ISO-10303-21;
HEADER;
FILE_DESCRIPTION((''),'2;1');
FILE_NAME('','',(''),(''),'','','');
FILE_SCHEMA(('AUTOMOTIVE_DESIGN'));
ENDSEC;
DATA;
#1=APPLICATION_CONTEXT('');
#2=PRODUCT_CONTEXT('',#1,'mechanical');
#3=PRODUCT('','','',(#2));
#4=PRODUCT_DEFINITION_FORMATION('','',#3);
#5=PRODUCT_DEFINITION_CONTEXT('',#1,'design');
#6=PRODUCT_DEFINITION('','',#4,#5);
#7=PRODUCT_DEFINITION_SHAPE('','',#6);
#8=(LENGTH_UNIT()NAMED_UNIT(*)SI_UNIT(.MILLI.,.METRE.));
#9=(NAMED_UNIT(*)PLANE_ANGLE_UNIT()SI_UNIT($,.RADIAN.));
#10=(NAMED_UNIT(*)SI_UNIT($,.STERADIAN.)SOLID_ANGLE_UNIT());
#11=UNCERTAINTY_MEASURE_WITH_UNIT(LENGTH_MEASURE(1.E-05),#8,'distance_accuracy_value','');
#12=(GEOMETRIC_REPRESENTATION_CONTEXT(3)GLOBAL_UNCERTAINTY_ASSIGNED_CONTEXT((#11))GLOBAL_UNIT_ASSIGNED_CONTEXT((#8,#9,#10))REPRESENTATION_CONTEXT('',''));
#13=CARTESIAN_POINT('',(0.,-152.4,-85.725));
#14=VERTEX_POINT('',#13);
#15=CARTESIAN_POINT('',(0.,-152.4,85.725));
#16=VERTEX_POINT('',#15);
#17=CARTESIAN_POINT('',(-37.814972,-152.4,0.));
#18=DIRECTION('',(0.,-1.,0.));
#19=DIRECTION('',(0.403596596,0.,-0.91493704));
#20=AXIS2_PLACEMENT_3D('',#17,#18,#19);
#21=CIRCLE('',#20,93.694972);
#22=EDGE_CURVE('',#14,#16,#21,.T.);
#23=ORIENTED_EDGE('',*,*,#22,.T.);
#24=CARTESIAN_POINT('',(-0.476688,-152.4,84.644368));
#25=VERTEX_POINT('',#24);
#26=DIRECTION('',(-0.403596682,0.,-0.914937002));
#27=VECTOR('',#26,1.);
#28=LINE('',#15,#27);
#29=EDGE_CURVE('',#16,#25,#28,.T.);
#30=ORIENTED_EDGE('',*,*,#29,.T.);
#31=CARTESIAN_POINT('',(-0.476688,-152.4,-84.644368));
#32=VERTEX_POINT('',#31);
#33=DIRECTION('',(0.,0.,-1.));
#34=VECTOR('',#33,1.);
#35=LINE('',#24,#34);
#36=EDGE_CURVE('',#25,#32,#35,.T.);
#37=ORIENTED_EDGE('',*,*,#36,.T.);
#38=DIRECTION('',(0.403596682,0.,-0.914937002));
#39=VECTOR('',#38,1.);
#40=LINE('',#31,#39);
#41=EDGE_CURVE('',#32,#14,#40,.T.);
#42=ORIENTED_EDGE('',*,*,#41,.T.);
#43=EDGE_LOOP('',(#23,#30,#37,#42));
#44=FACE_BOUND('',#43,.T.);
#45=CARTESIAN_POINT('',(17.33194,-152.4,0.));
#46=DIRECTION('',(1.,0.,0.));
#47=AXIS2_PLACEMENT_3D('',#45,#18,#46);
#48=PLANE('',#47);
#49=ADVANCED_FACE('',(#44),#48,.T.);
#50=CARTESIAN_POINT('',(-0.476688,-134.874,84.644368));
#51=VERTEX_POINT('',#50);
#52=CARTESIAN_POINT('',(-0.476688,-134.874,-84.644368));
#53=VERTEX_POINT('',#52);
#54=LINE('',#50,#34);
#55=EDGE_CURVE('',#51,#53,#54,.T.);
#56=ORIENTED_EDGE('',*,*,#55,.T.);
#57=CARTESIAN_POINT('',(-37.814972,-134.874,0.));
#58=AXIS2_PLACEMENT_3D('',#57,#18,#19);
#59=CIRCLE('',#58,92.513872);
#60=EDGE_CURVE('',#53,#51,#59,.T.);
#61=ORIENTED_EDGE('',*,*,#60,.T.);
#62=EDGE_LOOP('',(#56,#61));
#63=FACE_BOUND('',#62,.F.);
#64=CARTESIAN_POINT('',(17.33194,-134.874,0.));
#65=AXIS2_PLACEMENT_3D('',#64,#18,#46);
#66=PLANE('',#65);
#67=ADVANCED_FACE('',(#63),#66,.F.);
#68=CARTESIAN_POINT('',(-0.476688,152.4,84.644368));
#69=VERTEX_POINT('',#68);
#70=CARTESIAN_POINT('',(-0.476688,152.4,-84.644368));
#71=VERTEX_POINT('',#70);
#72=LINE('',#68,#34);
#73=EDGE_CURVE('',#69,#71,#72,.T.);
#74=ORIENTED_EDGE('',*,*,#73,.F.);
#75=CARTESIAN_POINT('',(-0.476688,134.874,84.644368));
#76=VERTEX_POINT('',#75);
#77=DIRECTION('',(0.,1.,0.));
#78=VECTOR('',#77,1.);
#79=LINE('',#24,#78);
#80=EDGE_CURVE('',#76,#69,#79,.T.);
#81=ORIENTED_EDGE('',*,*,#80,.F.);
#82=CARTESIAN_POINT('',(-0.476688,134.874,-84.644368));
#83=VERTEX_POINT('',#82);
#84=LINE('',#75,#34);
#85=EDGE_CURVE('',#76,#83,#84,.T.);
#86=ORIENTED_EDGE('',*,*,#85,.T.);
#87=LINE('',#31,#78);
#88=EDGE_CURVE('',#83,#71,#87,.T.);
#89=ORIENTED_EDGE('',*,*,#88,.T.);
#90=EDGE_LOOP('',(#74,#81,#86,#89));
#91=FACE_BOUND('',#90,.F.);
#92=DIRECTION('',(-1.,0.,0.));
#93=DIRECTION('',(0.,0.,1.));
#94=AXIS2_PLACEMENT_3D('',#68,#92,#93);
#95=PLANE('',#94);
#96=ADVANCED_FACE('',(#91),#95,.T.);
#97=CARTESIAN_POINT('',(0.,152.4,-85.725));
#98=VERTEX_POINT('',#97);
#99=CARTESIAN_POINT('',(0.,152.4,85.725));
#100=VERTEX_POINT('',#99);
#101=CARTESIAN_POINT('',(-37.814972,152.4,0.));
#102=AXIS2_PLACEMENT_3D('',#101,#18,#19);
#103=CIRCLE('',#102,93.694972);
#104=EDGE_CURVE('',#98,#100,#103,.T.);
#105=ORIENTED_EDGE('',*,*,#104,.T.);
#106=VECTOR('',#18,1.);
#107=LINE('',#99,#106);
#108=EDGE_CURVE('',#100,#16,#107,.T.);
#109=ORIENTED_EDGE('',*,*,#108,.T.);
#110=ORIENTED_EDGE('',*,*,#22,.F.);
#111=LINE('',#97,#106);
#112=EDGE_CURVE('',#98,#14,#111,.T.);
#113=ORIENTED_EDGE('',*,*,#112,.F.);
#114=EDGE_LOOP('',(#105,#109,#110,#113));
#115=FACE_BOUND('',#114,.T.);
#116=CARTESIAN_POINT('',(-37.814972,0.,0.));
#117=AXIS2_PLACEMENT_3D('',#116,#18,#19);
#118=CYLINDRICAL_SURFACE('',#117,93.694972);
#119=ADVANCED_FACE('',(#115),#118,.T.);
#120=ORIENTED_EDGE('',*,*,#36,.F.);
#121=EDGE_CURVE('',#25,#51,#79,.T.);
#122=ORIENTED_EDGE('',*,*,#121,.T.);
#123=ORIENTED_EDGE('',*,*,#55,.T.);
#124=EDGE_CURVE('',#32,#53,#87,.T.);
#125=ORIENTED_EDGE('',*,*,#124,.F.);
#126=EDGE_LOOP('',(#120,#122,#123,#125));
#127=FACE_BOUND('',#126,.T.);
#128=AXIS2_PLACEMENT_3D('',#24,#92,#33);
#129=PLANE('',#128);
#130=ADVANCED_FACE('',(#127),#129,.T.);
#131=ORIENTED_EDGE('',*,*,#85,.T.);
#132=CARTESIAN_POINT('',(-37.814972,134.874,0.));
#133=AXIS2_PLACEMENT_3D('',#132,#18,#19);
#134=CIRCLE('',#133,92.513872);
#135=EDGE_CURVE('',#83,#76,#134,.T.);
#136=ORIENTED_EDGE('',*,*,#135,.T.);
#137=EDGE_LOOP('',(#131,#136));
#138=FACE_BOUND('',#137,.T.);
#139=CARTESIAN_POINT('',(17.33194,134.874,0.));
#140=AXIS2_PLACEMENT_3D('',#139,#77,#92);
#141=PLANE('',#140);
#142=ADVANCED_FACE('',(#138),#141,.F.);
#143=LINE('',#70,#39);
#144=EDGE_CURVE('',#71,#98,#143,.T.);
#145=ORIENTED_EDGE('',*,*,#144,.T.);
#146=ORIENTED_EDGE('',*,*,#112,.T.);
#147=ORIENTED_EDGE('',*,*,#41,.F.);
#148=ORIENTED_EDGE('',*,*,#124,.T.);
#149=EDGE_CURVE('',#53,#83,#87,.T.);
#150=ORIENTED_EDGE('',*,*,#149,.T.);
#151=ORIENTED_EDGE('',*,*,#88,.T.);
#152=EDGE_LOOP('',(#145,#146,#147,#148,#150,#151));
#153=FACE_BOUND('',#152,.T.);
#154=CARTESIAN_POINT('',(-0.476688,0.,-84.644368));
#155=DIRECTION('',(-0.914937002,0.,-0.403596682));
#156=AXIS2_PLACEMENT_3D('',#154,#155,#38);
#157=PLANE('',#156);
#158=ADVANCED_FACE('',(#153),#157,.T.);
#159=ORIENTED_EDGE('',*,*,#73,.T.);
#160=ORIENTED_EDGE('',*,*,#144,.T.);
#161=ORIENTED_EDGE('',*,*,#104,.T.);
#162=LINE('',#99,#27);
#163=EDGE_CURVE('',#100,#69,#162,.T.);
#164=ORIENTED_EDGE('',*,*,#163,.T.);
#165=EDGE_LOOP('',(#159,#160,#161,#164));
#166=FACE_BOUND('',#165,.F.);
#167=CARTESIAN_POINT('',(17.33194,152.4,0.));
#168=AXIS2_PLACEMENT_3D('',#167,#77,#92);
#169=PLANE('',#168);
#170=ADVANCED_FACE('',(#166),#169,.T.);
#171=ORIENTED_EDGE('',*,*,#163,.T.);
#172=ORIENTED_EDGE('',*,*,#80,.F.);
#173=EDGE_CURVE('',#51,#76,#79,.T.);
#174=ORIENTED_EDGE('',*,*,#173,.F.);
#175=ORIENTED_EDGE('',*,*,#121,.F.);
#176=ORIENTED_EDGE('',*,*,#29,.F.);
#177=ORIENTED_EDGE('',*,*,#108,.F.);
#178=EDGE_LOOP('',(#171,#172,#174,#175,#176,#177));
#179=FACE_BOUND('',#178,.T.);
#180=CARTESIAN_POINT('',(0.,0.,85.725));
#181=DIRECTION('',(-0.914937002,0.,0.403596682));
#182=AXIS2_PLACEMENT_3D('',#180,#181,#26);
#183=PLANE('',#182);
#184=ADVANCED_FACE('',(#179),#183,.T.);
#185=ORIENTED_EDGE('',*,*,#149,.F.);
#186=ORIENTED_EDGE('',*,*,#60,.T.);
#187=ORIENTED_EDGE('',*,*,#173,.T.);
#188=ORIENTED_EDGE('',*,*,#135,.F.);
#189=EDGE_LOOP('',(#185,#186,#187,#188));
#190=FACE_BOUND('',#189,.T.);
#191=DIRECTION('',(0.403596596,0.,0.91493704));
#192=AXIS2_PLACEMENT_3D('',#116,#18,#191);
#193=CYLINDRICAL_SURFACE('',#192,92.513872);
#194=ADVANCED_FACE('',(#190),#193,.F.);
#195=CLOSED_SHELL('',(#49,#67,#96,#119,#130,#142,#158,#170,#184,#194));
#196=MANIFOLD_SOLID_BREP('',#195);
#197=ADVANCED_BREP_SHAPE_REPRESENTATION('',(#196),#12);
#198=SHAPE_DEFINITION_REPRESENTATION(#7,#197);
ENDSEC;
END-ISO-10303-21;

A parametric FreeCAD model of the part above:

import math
import FreeCAD as App
import Part
import Sketcher
Q = App.Units.Quantity

doc = App.newDocument("Part")
body = doc.addObject("PartDesign::Body", "Body")

# Sketch on XZ plane
sketch1 = doc.addObject("Sketcher::SketchObject", "Sketch")
body.addObject(sketch1)
sketch1.AttachmentSupport = (doc.XZ_Plane, [""])
sketch1.MapMode = "FlatFace"
sketch1.addGeometry([
    Part.LineSegment(App.Vector(-0.5, -84.6, 0), App.Vector(0, -85.7, 0)),
    Part.ArcOfCircle(Part.Circle(App.Vector(-37.8, 0, 0), App.Vector(0, 0, 1), 93.7), math.radians(-66), math.radians(66)),
    Part.LineSegment(App.Vector(0, 85.7, 0), App.Vector(-0.5, 84.6, 0)),
    Part.ArcOfCircle(Part.Circle(App.Vector(-37.8, 0, 0), App.Vector(0, 0, 1), 92.5), math.radians(-66), math.radians(66)),
], False)
sketch1.addConstraint([
    Sketcher.Constraint("Coincident", 0, 2, 1, 1),
    Sketcher.Constraint("Coincident", 1, 2, 2, 1),
    Sketcher.Constraint("Coincident", 2, 2, 3, 2),
    Sketcher.Constraint("Coincident", 3, 1, 0, 1),
    Sketcher.Constraint("Coincident", 3, 3, 1, 3),
    Sketcher.Constraint("Symmetric", 0, 2, 1, 2, -1, 1),
    Sketcher.Constraint("Symmetric", 2, 2, 3, 1, -1),
    Sketcher.Constraint("DistanceY", 0, 2, 1, 2, Q("6.75 in")),
    Sketcher.Constraint("Radius", 1, Q("93.694972 mm")),
    Sketcher.Constraint("Radius", 3, Q("92.513872 mm")),
    Sketcher.Constraint("DistanceY", -1, 1, 2, 2, Q("84.644368 mm")),
])
pad1 = doc.addObject("PartDesign::Pad", "Pad")
body.addObject(pad1)
pad1.Profile = sketch1
pad1.Length = Q("12 in")
pad1.Midplane = True

# Sketch on XZ plane
sketch2 = doc.addObject("Sketcher::SketchObject", "Sketch001")
body.addObject(sketch2)
sketch2.AttachmentSupport = (doc.XZ_Plane, [""])
sketch2.MapMode = "FlatFace"
sketch2.AttachmentOffset = App.Placement(App.Vector(0, 0, 6 * 25.4), App.Rotation())
sketch2.addGeometry([
    Part.LineSegment(App.Vector(0, 85, 0), App.Vector(0, -85, 0)),
    Part.ArcOfCircle(Part.Circle(App.Vector(-38, 0, 0), App.Vector(0, 0, 1), 93), math.radians(-66), math.radians(66)),
], False)
sketch2.addConstraint([
    Sketcher.Constraint("Coincident", 0, 1, 1, 2),
    Sketcher.Constraint("Coincident", 1, 1, 0, 2),
    Sketcher.Constraint("Vertical", 0),
    Sketcher.Constraint("PointOnObject", 1, 3, -1),
    Sketcher.Constraint("Radius", 1, Q("92.513872 mm")),
    Sketcher.Constraint("DistanceY", 0, 2, 0, 1, Q("169.288736 mm")),
    Sketcher.Constraint("DistanceX", 1, 3, -1, 1, Q("37.814972 mm")),
])
pad2 = doc.addObject("PartDesign::Pad", "Pad001")
body.addObject(pad2)
pad2.Profile = sketch2
pad2.Length = Q("0.69 in")
pad2.Reversed = True
body2 = doc.addObject("PartDesign::Body", "Body001")
doc.recompute()

body2.BaseFeature = body
doc.recompute()

mirroring = doc.addObject("Part::Mirroring", "Mirroring")
mirroring.Source = body
mirroring.Base = App.Vector(0, 0, 0)
mirroring.Normal = App.Vector(0, -1, 0)
body3 = doc.addObject("PartDesign::Body", "Body002")
body3.BaseFeature = mirroring
boolean = doc.addObject("PartDesign::Boolean", "Boolean")
body2.addObject(boolean)
boolean.Type = "Fuse"
boolean.addObjects([body3])
doc.recompute()
mirroring.Visibility = False

doc.recompute()
